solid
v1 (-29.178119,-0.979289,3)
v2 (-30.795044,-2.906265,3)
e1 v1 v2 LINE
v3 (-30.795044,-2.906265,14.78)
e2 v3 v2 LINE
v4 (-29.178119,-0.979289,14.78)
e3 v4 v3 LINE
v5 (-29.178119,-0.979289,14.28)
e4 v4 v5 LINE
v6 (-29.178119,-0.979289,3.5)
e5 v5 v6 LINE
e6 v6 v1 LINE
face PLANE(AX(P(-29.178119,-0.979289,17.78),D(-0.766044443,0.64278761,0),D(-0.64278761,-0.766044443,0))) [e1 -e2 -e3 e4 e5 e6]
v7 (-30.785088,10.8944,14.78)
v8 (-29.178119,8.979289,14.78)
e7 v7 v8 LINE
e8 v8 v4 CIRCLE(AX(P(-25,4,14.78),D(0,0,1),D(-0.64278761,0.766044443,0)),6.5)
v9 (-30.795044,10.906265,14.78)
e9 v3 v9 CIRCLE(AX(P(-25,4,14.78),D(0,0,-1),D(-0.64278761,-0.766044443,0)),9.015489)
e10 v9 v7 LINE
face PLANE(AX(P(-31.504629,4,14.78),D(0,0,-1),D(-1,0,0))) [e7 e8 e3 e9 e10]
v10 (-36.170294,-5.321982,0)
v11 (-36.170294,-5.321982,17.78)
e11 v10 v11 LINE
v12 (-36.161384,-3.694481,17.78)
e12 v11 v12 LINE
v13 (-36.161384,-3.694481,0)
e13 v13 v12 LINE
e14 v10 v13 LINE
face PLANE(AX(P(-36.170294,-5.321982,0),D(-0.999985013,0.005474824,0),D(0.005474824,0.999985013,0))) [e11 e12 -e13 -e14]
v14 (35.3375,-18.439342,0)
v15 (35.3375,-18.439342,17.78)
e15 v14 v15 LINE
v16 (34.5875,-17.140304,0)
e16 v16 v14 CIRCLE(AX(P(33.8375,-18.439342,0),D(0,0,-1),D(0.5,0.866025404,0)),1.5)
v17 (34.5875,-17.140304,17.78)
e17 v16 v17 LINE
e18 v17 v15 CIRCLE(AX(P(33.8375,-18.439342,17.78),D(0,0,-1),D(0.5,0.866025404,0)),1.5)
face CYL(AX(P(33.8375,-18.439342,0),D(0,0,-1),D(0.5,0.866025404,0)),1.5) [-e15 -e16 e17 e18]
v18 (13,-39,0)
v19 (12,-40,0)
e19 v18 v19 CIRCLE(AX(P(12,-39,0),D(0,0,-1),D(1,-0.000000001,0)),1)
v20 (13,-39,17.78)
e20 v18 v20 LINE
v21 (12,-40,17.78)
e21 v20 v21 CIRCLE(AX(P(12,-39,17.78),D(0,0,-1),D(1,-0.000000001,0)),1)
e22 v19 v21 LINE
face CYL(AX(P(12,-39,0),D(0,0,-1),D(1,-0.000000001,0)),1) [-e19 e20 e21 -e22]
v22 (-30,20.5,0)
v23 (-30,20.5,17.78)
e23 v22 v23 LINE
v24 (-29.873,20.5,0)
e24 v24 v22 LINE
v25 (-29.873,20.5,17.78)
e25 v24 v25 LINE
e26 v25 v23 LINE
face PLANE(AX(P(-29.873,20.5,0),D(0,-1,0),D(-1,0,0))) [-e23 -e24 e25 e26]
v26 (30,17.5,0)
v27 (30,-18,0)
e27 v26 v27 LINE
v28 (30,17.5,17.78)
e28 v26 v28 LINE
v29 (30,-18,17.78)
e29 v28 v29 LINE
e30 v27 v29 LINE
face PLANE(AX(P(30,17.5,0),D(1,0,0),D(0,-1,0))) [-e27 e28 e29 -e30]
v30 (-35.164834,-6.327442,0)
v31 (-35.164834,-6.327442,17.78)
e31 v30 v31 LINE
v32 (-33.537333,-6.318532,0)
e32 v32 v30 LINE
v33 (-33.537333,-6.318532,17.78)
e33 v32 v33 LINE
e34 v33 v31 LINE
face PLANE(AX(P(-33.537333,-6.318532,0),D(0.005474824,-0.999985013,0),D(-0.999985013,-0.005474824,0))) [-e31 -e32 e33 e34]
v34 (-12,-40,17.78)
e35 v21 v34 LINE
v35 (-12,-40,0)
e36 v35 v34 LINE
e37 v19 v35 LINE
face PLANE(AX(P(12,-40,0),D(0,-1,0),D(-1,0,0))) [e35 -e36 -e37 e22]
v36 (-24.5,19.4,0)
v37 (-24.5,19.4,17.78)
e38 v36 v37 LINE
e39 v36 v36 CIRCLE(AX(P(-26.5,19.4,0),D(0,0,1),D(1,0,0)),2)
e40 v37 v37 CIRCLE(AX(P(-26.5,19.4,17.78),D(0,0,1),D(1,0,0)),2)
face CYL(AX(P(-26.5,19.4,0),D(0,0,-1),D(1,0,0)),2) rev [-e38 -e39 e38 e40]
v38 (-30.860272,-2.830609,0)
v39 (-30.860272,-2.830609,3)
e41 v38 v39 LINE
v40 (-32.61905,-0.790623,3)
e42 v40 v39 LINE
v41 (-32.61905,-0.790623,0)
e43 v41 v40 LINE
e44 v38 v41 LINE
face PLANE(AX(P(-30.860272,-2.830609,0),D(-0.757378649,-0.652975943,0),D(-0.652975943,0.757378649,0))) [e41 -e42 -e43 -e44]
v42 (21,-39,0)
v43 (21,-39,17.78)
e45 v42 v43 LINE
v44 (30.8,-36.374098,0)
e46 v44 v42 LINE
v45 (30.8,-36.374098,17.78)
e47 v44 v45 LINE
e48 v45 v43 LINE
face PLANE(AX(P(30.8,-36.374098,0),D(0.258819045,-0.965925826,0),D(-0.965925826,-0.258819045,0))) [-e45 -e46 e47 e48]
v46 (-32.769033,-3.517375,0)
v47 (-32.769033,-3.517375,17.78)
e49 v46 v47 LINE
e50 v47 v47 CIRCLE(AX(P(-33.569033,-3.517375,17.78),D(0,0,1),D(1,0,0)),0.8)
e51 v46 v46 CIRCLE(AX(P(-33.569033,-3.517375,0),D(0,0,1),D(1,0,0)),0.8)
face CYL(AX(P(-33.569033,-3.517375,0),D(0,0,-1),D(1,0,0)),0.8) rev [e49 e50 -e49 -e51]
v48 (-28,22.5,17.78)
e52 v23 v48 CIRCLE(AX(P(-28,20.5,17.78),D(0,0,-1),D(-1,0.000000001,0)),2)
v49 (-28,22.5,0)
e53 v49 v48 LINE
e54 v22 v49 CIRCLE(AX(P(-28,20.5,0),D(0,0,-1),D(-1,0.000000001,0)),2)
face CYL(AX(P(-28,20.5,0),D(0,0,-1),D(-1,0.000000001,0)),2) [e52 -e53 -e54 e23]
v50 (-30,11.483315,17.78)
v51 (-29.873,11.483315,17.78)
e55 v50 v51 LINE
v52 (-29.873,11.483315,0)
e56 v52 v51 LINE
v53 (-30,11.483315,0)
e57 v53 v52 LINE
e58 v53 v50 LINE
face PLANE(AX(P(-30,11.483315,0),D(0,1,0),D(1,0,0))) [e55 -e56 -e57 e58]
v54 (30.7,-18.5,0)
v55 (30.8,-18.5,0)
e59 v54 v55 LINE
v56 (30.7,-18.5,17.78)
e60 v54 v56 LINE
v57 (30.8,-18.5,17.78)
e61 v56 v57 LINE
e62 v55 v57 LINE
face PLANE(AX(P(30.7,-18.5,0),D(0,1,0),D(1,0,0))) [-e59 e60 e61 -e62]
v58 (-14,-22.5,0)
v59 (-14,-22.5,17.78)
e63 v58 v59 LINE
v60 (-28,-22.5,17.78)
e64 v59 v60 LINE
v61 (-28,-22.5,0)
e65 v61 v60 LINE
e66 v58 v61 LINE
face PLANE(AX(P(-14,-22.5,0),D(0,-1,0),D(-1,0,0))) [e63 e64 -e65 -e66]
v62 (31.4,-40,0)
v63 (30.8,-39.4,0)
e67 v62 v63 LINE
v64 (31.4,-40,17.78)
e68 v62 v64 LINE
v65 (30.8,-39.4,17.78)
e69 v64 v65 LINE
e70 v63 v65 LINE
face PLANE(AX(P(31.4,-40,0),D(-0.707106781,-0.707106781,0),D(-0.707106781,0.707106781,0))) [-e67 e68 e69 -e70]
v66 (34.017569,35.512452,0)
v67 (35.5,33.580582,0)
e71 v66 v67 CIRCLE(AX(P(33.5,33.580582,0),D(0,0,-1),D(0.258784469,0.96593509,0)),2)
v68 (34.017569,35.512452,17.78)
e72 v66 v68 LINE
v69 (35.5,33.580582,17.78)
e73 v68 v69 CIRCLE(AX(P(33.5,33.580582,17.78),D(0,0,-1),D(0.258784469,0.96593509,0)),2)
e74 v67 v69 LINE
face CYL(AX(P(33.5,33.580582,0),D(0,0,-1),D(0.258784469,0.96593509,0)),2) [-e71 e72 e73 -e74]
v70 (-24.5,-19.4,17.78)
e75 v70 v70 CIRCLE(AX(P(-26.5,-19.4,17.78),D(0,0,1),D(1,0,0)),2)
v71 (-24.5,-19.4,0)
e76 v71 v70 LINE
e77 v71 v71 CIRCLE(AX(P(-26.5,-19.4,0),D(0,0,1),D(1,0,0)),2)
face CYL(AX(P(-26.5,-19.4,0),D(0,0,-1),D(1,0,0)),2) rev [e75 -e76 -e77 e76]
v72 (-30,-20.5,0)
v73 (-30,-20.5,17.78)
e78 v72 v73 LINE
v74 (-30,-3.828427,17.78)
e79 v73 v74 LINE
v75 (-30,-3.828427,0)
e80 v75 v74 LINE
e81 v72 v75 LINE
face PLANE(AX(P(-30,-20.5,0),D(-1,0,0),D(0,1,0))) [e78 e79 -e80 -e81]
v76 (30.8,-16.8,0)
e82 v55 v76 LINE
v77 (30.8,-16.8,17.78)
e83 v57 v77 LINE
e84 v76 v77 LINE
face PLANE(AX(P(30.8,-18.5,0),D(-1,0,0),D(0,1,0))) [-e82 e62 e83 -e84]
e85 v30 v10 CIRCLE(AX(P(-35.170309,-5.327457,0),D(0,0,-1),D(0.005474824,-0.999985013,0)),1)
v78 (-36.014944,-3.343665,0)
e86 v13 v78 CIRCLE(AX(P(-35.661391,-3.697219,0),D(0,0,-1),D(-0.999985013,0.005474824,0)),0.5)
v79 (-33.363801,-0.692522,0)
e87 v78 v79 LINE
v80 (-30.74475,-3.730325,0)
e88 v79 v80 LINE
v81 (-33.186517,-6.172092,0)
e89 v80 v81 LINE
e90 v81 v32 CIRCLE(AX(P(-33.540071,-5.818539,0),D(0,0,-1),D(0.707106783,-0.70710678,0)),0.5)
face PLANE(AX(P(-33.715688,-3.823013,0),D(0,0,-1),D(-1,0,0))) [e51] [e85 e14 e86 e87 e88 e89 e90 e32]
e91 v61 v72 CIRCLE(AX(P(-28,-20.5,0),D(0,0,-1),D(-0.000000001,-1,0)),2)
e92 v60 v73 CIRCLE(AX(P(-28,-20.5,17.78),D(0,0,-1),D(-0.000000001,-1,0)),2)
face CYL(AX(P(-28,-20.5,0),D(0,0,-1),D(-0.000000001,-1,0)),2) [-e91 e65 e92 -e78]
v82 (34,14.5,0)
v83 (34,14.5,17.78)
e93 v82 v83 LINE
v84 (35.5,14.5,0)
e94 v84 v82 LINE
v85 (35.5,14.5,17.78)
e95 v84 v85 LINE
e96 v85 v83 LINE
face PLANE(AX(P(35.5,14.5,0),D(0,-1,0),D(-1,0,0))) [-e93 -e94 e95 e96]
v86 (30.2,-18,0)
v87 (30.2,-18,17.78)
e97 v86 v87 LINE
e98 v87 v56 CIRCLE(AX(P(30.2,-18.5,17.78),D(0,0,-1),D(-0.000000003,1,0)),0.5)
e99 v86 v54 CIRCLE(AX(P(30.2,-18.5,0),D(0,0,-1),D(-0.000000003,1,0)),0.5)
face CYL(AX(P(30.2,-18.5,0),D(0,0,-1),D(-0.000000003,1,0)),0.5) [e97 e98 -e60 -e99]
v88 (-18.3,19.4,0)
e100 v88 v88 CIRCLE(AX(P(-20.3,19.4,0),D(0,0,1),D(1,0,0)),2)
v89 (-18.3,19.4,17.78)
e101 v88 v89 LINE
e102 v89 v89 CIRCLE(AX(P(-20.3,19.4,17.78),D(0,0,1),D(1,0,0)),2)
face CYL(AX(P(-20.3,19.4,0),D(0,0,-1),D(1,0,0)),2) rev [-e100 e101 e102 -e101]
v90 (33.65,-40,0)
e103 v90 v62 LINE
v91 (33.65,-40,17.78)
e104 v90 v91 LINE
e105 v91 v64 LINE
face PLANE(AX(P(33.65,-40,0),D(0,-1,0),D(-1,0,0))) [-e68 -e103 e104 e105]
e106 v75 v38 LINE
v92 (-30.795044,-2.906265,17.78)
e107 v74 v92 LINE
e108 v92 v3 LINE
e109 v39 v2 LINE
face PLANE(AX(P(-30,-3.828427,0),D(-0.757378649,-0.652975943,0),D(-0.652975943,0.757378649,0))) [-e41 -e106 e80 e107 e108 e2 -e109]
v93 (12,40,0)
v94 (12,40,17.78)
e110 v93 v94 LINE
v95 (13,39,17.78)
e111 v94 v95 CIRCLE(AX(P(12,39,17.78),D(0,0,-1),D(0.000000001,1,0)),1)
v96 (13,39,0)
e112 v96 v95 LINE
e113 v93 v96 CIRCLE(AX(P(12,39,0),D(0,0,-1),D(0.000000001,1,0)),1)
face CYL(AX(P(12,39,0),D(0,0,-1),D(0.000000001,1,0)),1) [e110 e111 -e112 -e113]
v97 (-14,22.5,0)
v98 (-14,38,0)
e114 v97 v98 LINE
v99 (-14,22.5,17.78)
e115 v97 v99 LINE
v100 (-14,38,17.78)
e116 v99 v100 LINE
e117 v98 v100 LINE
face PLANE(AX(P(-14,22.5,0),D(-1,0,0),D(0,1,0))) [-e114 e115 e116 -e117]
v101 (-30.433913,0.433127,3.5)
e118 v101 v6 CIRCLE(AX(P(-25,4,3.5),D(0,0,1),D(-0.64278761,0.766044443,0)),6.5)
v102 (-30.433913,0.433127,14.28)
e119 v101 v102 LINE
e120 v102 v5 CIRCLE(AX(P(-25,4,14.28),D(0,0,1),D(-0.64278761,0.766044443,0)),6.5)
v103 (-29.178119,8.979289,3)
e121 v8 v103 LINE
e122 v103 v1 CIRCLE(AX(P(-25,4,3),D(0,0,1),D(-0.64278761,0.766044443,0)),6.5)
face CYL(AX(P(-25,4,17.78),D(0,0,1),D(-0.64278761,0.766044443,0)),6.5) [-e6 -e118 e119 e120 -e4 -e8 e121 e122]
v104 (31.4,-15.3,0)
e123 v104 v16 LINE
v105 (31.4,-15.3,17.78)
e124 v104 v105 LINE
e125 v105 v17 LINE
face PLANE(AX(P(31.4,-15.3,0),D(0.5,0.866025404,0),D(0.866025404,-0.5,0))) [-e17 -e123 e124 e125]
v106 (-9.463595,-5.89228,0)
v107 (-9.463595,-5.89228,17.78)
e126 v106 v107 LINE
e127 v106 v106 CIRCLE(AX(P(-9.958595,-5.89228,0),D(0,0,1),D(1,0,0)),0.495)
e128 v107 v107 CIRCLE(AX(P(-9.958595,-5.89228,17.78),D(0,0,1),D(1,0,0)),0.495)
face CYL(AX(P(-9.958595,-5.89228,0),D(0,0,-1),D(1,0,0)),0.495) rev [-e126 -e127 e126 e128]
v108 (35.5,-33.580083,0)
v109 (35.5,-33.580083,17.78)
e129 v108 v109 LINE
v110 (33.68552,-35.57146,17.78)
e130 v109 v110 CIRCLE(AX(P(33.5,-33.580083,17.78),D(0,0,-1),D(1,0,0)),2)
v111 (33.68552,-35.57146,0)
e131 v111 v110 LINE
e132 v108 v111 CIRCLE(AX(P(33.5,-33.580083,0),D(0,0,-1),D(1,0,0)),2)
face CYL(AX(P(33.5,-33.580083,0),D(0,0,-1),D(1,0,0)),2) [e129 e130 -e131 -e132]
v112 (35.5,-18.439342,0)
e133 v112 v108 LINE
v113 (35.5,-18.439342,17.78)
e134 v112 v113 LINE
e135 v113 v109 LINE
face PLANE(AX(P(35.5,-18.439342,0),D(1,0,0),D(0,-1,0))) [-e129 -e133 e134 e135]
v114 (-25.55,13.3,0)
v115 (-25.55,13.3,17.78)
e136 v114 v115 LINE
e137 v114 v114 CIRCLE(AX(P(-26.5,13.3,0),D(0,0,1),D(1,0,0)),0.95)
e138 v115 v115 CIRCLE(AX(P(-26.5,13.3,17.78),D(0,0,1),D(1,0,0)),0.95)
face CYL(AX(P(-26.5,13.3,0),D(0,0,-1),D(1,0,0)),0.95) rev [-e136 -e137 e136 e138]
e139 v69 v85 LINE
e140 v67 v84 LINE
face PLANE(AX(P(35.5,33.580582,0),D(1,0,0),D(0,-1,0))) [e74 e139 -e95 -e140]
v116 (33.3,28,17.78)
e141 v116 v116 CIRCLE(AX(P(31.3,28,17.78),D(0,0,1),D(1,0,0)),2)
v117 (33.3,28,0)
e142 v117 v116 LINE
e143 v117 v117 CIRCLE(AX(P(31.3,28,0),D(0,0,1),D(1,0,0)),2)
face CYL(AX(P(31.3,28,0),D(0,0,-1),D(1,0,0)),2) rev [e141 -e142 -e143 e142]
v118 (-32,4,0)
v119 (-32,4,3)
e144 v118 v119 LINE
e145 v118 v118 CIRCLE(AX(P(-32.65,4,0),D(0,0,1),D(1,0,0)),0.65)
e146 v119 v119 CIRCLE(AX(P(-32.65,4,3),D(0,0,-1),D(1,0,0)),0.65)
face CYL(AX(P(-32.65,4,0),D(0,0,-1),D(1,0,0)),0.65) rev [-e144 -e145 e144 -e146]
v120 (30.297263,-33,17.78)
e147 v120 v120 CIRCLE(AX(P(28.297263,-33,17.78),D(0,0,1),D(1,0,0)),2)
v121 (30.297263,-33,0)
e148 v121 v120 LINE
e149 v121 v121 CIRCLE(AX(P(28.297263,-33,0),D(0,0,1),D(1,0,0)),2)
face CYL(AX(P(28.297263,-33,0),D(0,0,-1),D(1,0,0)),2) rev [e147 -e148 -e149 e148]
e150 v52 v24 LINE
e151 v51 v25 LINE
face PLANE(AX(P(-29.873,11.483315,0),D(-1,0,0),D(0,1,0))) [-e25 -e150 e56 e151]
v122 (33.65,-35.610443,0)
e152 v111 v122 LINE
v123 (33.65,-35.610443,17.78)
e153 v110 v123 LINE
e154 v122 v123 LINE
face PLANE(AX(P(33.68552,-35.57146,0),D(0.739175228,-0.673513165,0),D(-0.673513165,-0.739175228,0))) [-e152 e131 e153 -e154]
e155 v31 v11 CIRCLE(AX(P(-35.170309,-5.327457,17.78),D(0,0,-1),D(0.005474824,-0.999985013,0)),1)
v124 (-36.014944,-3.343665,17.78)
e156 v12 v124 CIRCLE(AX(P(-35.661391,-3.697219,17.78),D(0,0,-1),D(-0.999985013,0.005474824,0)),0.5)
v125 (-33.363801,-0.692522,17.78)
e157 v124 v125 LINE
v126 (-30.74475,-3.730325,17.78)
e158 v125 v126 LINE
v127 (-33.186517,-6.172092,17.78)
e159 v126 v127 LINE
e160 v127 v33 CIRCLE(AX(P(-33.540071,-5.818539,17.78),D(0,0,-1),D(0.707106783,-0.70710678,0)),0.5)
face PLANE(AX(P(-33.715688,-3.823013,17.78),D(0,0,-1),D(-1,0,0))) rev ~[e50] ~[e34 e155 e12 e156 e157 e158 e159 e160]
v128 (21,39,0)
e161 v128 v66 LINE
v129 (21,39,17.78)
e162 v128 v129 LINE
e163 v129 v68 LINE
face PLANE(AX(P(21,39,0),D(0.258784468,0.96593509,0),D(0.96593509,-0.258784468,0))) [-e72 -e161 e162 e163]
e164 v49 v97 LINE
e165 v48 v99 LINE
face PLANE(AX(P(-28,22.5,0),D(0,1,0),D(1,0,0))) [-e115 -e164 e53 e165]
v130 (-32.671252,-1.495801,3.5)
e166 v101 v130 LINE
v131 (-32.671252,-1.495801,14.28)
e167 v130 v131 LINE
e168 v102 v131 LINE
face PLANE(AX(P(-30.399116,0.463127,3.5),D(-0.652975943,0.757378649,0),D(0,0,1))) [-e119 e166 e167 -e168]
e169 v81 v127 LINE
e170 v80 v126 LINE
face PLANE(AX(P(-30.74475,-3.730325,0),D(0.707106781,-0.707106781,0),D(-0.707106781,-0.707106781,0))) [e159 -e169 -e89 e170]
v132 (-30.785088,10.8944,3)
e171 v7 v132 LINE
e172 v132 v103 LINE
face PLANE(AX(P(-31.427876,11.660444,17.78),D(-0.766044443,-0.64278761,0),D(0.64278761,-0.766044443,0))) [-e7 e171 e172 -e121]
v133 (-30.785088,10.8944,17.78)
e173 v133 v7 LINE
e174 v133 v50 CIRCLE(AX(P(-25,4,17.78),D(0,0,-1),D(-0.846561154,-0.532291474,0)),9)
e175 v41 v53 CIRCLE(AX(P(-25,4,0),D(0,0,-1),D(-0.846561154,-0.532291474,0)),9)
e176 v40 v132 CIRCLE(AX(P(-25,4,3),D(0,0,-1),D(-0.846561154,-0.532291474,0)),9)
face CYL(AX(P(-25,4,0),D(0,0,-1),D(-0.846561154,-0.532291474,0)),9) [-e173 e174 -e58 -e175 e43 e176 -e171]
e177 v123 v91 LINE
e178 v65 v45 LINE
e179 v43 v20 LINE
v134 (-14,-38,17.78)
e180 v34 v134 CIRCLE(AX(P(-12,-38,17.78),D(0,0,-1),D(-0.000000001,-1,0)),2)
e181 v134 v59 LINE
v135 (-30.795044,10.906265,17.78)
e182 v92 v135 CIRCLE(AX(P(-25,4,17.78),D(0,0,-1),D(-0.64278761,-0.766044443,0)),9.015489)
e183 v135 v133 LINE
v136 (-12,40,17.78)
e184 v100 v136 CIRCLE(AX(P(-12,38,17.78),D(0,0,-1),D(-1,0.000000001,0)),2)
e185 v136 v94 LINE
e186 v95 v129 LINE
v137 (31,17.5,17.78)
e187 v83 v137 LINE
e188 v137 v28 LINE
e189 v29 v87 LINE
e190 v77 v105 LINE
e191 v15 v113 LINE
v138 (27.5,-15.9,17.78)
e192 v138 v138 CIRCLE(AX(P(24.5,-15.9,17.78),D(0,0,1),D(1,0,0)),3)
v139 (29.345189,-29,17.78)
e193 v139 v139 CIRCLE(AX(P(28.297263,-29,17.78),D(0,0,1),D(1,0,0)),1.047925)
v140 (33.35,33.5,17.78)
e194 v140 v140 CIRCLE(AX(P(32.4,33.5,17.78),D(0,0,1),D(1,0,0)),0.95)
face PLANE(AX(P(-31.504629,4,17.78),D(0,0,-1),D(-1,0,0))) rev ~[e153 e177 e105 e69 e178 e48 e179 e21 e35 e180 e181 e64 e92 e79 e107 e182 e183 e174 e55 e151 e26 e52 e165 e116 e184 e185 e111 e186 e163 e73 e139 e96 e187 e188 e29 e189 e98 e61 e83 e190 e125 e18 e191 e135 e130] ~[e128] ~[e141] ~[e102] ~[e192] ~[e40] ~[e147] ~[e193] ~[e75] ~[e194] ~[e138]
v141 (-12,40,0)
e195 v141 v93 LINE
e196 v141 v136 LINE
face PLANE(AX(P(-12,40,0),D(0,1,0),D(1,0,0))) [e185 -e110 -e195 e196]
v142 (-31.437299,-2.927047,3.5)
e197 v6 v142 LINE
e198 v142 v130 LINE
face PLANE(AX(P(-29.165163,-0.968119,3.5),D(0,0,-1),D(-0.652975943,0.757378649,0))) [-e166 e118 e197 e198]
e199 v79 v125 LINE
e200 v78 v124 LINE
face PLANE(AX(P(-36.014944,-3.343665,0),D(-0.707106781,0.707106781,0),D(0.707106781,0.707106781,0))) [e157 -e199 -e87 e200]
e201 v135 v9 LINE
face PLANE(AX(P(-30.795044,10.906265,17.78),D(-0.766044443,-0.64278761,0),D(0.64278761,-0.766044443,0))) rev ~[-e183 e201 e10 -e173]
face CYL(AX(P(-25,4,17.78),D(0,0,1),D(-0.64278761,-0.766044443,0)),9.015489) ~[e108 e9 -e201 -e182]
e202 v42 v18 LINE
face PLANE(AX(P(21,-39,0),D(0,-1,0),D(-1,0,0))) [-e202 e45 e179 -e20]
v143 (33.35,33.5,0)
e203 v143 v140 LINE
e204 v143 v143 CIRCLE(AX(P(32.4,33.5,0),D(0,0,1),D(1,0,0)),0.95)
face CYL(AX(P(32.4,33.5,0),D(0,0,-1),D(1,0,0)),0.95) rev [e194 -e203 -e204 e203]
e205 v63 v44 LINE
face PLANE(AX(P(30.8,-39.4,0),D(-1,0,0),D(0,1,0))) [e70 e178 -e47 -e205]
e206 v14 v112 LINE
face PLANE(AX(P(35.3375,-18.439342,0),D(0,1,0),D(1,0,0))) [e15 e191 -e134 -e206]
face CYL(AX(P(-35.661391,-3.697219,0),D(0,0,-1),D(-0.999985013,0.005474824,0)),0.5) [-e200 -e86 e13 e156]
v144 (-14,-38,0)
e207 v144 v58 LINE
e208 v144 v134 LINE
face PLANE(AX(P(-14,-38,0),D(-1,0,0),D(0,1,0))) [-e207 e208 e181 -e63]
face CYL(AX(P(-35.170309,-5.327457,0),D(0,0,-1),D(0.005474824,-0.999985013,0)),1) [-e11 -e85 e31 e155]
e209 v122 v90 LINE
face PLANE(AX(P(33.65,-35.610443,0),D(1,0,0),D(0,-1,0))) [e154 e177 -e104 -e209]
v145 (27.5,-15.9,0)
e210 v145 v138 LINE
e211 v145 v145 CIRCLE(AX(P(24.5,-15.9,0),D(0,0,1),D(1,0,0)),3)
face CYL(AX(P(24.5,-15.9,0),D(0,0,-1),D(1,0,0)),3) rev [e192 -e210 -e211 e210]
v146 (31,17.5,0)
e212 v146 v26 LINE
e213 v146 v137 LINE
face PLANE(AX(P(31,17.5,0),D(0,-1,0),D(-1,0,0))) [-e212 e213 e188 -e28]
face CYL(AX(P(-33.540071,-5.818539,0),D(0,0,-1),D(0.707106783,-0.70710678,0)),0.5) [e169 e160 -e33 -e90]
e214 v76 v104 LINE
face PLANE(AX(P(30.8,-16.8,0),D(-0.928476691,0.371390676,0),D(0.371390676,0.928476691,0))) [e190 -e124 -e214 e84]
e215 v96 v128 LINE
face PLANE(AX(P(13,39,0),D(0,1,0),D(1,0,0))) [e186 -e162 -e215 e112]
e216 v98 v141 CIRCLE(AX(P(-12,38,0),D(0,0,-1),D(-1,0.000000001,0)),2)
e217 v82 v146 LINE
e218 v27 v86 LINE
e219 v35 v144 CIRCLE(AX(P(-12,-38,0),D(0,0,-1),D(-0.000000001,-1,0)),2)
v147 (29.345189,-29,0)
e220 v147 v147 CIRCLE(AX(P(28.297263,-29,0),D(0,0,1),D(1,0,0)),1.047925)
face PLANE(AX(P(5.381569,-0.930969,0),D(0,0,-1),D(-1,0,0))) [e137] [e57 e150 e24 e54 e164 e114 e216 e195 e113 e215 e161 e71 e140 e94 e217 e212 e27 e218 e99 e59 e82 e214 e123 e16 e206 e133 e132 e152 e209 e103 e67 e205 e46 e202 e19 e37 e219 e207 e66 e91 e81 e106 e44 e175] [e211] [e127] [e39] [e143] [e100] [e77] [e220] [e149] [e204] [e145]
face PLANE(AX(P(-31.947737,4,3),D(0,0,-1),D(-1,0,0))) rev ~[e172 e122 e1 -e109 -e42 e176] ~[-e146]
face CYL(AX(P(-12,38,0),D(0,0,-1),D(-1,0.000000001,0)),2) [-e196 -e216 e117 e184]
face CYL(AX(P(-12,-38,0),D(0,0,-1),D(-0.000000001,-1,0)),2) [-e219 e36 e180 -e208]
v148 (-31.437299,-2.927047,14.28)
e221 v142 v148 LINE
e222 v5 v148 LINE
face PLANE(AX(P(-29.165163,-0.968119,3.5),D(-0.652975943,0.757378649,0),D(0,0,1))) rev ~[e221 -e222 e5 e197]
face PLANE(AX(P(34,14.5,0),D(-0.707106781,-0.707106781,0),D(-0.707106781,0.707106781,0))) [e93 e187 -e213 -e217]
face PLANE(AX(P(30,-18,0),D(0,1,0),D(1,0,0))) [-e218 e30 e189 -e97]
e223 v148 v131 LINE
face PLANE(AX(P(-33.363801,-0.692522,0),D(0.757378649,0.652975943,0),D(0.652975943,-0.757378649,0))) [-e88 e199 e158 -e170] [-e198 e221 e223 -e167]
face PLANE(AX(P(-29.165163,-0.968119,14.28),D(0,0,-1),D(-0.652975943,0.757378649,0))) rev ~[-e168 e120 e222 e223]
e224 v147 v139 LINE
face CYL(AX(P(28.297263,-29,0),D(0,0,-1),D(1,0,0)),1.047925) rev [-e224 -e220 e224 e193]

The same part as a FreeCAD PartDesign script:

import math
import FreeCAD as App
import Part
import Sketcher
Q = App.Units.Quantity

doc = App.newDocument("Part")
body = doc.addObject("PartDesign::Body", "Body")

# Sketch on XY plane
sketch1 = doc.addObject("Sketcher::SketchObject", "Sketch")
body.addObject(sketch1)
sketch1.AttachmentSupport = (doc.XY_Plane, [""])
sketch1.MapMode = "FlatFace"
sketch1.addGeometry([
    Part.LineSegment(App.Vector(34, 14.5, 0), App.Vector(35.5, 14.5, 0)),  # 0
    Part.LineSegment(App.Vector(35.5, 14.5, 0), App.Vector(35.5, 33.58, 0)),  # 1
    Part.ArcOfCircle(Part.Circle(App.Vector(33.5, 33.58, 0), App.Vector(0, 0, 1), 2), math.radians(0), math.radians(75)),  # 2
    Part.LineSegment(App.Vector(34.02, 35.51, 0), App.Vector(21, 39, 0)),  # 3
    Part.LineSegment(App.Vector(21, 39, 0), App.Vector(13, 39, 0)),  # 4
    Part.ArcOfCircle(Part.Circle(App.Vector(12, 39, 0), App.Vector(0, 0, 1), 1), math.radians(0), math.radians(90)),  # 5
    Part.LineSegment(App.Vector(12, 40, 0), App.Vector(-12, 40, 0)),  # 6
    Part.ArcOfCircle(Part.Circle(App.Vector(-12, 38, 0), App.Vector(0, 0, 1), 2), math.radians(90), math.radians(180)),  # 7
    Part.LineSegment(App.Vector(-14, 38, 0), App.Vector(-14, 22.5, 0)),  # 8
    Part.LineSegment(App.Vector(-14, 22.5, 0), App.Vector(-28, 22.5, 0)),  # 9
    Part.ArcOfCircle(Part.Circle(App.Vector(-28, 20.5, 0), App.Vector(0, 0, 1), 2), math.radians(90), math.radians(180)),  # 10
    Part.LineSegment(App.Vector(-30, 20.5, 0), App.Vector(-29.87, 20.5, 0)),  # 11
    Part.LineSegment(App.Vector(-29.87, 20.5, 0), App.Vector(-29.87, 11.48, 0)),  # 12
    Part.LineSegment(App.Vector(-29.87, 11.48, 0), App.Vector(-30, 11.48, 0)),  # 13
    Part.ArcOfCircle(Part.Circle(App.Vector(-25, 4, 0), App.Vector(0, 0, 1), 9), math.radians(124), math.radians(212)),  # 14
    Part.LineSegment(App.Vector(-32.62, -0.79, 0), App.Vector(-30.86, -2.83, 0)),  # 15
    Part.LineSegment(App.Vector(-30.86, -2.83, 0), App.Vector(-30, -3.83, 0)),  # 16
    Part.LineSegment(App.Vector(-30, -3.83, 0), App.Vector(-30, -20.5, 0)),  # 17
    Part.ArcOfCircle(Part.Circle(App.Vector(-28, -20.5, 0), App.Vector(0, 0, 1), 2), math.radians(-180), math.radians(-90)),  # 18
    Part.LineSegment(App.Vector(-28, -22.5, 0), App.Vector(-14, -22.5, 0)),  # 19
    Part.LineSegment(App.Vector(-14, -22.5, 0), App.Vector(-14, -38, 0)),  # 20
    Part.ArcOfCircle(Part.Circle(App.Vector(-12, -38, 0), App.Vector(0, 0, 1), 2), math.radians(-180), math.radians(-90)),  # 21
    Part.LineSegment(App.Vector(-12, -40, 0), App.Vector(12, -40, 0)),  # 22
    Part.ArcOfCircle(Part.Circle(App.Vector(12, -39, 0), App.Vector(0, 0, 1), 1), math.radians(-90), math.radians(0)),  # 23
    Part.LineSegment(App.Vector(13, -39, 0), App.Vector(21, -39, 0)),  # 24
    Part.LineSegment(App.Vector(21, -39, 0), App.Vector(30.8, -36.37, 0)),  # 25
    Part.LineSegment(App.Vector(30.8, -36.37, 0), App.Vector(30.8, -39.4, 0)),  # 26
    Part.LineSegment(App.Vector(30.8, -39.4, 0), App.Vector(31.4, -40, 0)),  # 27
    Part.LineSegment(App.Vector(31.4, -40, 0), App.Vector(33.65, -40, 0)),  # 28
    Part.LineSegment(App.Vector(33.65, -40, 0), App.Vector(33.65, -35.61, 0)),  # 29
    Part.LineSegment(App.Vector(33.65, -35.61, 0), App.Vector(33.69, -35.57, 0)),  # 30
    Part.ArcOfCircle(Part.Circle(App.Vector(33.5, -33.58, 0), App.Vector(0, 0, 1), 2), math.radians(-85), math.radians(0)),  # 31
    Part.LineSegment(App.Vector(35.5, -33.58, 0), App.Vector(35.5, -18.44, 0)),  # 32
    Part.LineSegment(App.Vector(35.5, -18.44, 0), App.Vector(35.34, -18.44, 0)),  # 33
    Part.ArcOfCircle(Part.Circle(App.Vector(33.84, -18.44, 0), App.Vector(0, 0, 1), 1.5), math.radians(0), math.radians(60)),  # 34
    Part.LineSegment(App.Vector(34.59, -17.14, 0), App.Vector(31.4, -15.3, 0)),  # 35
    Part.LineSegment(App.Vector(31.4, -15.3, 0), App.Vector(30.8, -16.8, 0)),  # 36
    Part.LineSegment(App.Vector(30.8, -16.8, 0), App.Vector(30.8, -18.5, 0)),  # 37
    Part.LineSegment(App.Vector(30.8, -18.5, 0), App.Vector(30.7, -18.5, 0)),  # 38
    Part.ArcOfCircle(Part.Circle(App.Vector(30.2, -18.5, 0), App.Vector(0, 0, 1), 0.5), math.radians(0), math.radians(90)),  # 39
    Part.LineSegment(App.Vector(30.2, -18, 0), App.Vector(30, -18, 0)),  # 40
    Part.LineSegment(App.Vector(30, -18, 0), App.Vector(30, 17.5, 0)),  # 41
    Part.LineSegment(App.Vector(30, 17.5, 0), App.Vector(31, 17.5, 0)),  # 42
    Part.LineSegment(App.Vector(31, 17.5, 0), App.Vector(34, 14.5, 0)),  # 43
    Part.Circle(App.Vector(28.3, -33, 0), App.Vector(0, 0, 1), 2),  # 44
    Part.Circle(App.Vector(28.3, -29, 0), App.Vector(0, 0, 1), 1.05),  # 45
    Part.Circle(App.Vector(24.5, -15.9, 0), App.Vector(0, 0, 1), 3),  # 46
    Part.Circle(App.Vector(-26.5, -19.4, 0), App.Vector(0, 0, 1), 2),  # 47
    Part.Circle(App.Vector(-9.96, -5.89, 0), App.Vector(0, 0, 1), 0.49),  # 48
    Part.Circle(App.Vector(31.3, 28, 0), App.Vector(0, 0, 1), 2),  # 49
    Part.Circle(App.Vector(32.4, 33.5, 0), App.Vector(0, 0, 1), 0.95),  # 50
    Part.Circle(App.Vector(-32.65, 4, 0), App.Vector(0, 0, 1), 0.65),  # 51
    Part.Circle(App.Vector(-26.5, 13.3, 0), App.Vector(0, 0, 1), 0.95),  # 52
    Part.Circle(App.Vector(-20.3, 19.4, 0), App.Vector(0, 0, 1), 2),  # 53
    Part.Circle(App.Vector(-26.5, 19.4, 0), App.Vector(0, 0, 1), 2),  # 54
], False)
sketch1.addConstraint([
    Sketcher.Constraint("Coincident", 0, 2, 1, 1),
    Sketcher.Constraint("Tangent", 1, 2, 2, 1),
    Sketcher.Constraint("Tangent", 2, 2, 3, 1),
    Sketcher.Constraint("Coincident", 3, 2, 4, 1),
    Sketcher.Constraint("Coincident", 4, 2, 5, 1),
    Sketcher.Constraint("Tangent", 5, 2, 6, 1),
    Sketcher.Constraint("Tangent", 6, 2, 7, 1),
    Sketcher.Constraint("Tangent", 7, 2, 8, 1),
    Sketcher.Constraint("Coincident", 8, 2, 9, 1),
    Sketcher.Constraint("Tangent", 9, 2, 10, 1),
    Sketcher.Constraint("Coincident", 10, 2, 11, 1),
    Sketcher.Constraint("Coincident", 11, 2, 12, 1),
    Sketcher.Constraint("Coincident", 12, 2, 13, 1),
    Sketcher.Constraint("Coincident", 13, 2, 14, 1),
    Sketcher.Constraint("Coincident", 14, 2, 15, 1),
    Sketcher.Constraint("Coincident", 15, 2, 16, 1),
    Sketcher.Constraint("Coincident", 16, 2, 17, 1),
    Sketcher.Constraint("Tangent", 17, 2, 18, 1),
    Sketcher.Constraint("Tangent", 18, 2, 19, 1),
    Sketcher.Constraint("Coincident", 19, 2, 20, 1),
    Sketcher.Constraint("Tangent", 20, 2, 21, 1),
    Sketcher.Constraint("Tangent", 21, 2, 22, 1),
    Sketcher.Constraint("Tangent", 22, 2, 23, 1),
    Sketcher.Constraint("Coincident", 23, 2, 24, 1),
    Sketcher.Constraint("Coincident", 24, 2, 25, 1),
    Sketcher.Constraint("Coincident", 25, 2, 26, 1),
    Sketcher.Constraint("Coincident", 26, 2, 27, 1),
    Sketcher.Constraint("Coincident", 27, 2, 28, 1),
    Sketcher.Constraint("Coincident", 28, 2, 29, 1),
    Sketcher.Constraint("Coincident", 29, 2, 30, 1),
    Sketcher.Constraint("Coincident", 30, 2, 31, 1),
    Sketcher.Constraint("Tangent", 31, 2, 32, 1),
    Sketcher.Constraint("Coincident", 32, 2, 33, 1),
    Sketcher.Constraint("Coincident", 33, 2, 34, 1),
    Sketcher.Constraint("Tangent", 34, 2, 35, 1),
    Sketcher.Constraint("Coincident", 35, 2, 36, 1),
    Sketcher.Constraint("Coincident", 36, 2, 37, 1),
    Sketcher.Constraint("Coincident", 37, 2, 38, 1),
    Sketcher.Constraint("Coincident", 38, 2, 39, 1),
    Sketcher.Constraint("Tangent", 39, 2, 40, 1),
    Sketcher.Constraint("Coincident", 40, 2, 41, 1),
    Sketcher.Constraint("Coincident", 41, 2, 42, 1),
    Sketcher.Constraint("Coincident", 42, 2, 43, 1),
    Sketcher.Constraint("Coincident", 43, 2, 0, 1),
    Sketcher.Constraint("Horizontal", 0),
    Sketcher.Constraint("Vertical", 1),
    Sketcher.Constraint("Horizontal", 4),
    Sketcher.Constraint("Horizontal", 6),
    Sketcher.Constraint("Vertical", 8),
    Sketcher.Constraint("Horizontal", 9),
    Sketcher.Constraint("Horizontal", 11),
    Sketcher.Constraint("Vertical", 12),
    Sketcher.Constraint("Horizontal", 13),
    Sketcher.Constraint("Vertical", 17),
    Sketcher.Constraint("Horizontal", 19),
    Sketcher.Constraint("Vertical", 20),
    Sketcher.Constraint("Horizontal", 22),
    Sketcher.Constraint("Horizontal", 24),
    Sketcher.Constraint("Vertical", 26),
    Sketcher.Constraint("Horizontal", 28),
    Sketcher.Constraint("Vertical", 29),
    Sketcher.Constraint("Vertical", 32),
    Sketcher.Constraint("Horizontal", 33),
    Sketcher.Constraint("Vertical", 37),
    Sketcher.Constraint("Horizontal", 38),
    Sketcher.Constraint("Horizontal", 40),
    Sketcher.Constraint("Vertical", 41),
    Sketcher.Constraint("Horizontal", 42),
    Sketcher.Constraint("Equal", 2, 7),
    Sketcher.Constraint("Equal", 7, 10),
    Sketcher.Constraint("Equal", 10, 18),
    Sketcher.Constraint("Equal", 18, 21),
    Sketcher.Constraint("Equal", 5, 23),
    Sketcher.Constraint("Equal", 21, 31),
    Sketcher.Constraint("Equal", 31, 44),
    Sketcher.Constraint("Equal", 44, 47),
    Sketcher.Constraint("Equal", 47, 49),
    Sketcher.Constraint("Equal", 50, 52),
    Sketcher.Constraint("Equal", 49, 53),
    Sketcher.Constraint("Equal", 53, 54),
    Sketcher.Constraint("Symmetric", 5, 2, 21, 2, -1, 1),
    Sketcher.Constraint("Symmetric", 10, 3, 18, 3, -1),
    Sketcher.Constraint("Symmetric", 47, 3, 54, 3, -1),
    Sketcher.Constraint("Symmetric", 4, 2, 23, 2, -1),
    Sketcher.Constraint("Parallel", 15, 16),
    Sketcher.Constraint("Parallel", 27, 43),
    Sketcher.Constraint("Horizontal", 14, 3, 51, 3),
    Sketcher.Constraint("Horizontal", 53, 3, 54, 3),
    Sketcher.Constraint("Horizontal", 5, 3, 3, 2),
    Sketcher.Constraint("Horizontal", 22, 2, 27, 2),
    Sketcher.Constraint("Horizontal", 34, 3, 32, 2),
    Sketcher.Constraint("Horizontal", 39, 3, 37, 2),
    Sketcher.Constraint("Vertical", 7, 3, 21, 3),
    Sketcher.Constraint("Vertical", 2, 3, 31, 3),
    Sketcher.Constraint("Vertical", 44, 3, 45, 3),
    Sketcher.Constraint("Vertical", 47, 3, 52, 3),
    Sketcher.Constraint("Vertical", 10, 2, 13, 2),
    Sketcher.Constraint("Vertical", 3, 2, 24, 2),
    Sketcher.Constraint("Vertical", 27, 2, 35, 2),
    Sketcher.Constraint("Vertical", 26, 2, 36, 2),
    Sketcher.Constraint("Diameter", 44, 4.0),
    Sketcher.Constraint("Diameter", 46, 6.0),
    Sketcher.Constraint("Radius", 5, 1.0),
    Sketcher.Constraint("Radius", 14, 9.0),
    Sketcher.Constraint("Diameter", 50, 1.9),
    Sketcher.Constraint("Diameter", 51, 1.3),
    Sketcher.Constraint("Radius", 34, 1.5),
    Sketcher.Constraint("Radius", 39, 0.5),
    Sketcher.Constraint("Diameter", 48, 0.99),
    Sketcher.Constraint("DistanceX", 4, 2, 4, 1, 8.0),
    Sketcher.Constraint("DistanceX", 6, 2, 6, 1, 24.0),
    Sketcher.Constraint("DistanceX", 9, 2, 9, 1, 14.0),
    Sketcher.Constraint("DistanceX", 42, 1, 42, 2, 1.0),
    Sketcher.Constraint("Angle", 25, Q("15 deg")),
    Sketcher.Constraint("Angle", 27, Q("-45 deg")),
    Sketcher.Constraint("Angle", 35, Q("150 deg")),
    Sketcher.Constraint("DistanceX", 0, 1, 0, 2, 1.5),
    Sketcher.Constraint("DistanceX", 38, 2, 38, 1, 0.1),
    Sketcher.Constraint("DistanceX", 40, 2, 40, 1, 0.2),
    Sketcher.Constraint("DistanceY", 8, 2, 8, 1, 15.5),
    Sketcher.Constraint("DistanceY", 37, 2, 37, 1, 1.7),
    Sketcher.Constraint("DistanceY", 41, 1, 41, 2, 35.5),
    Sketcher.Constraint("DistanceY", -1, 1, 5, 3, 39.0),
    Sketcher.Constraint("DistanceX", 14, 3, -1, 1, 25.0),
    Sketcher.Constraint("DistanceY", -1, 1, 14, 3, 4.0),
    Sketcher.Constraint("DistanceY", 44, 3, -1, 1, 33.0),
    Sketcher.Constraint("DistanceY", 45, 3, -1, 1, 29.0),
    Sketcher.Constraint("DistanceY", -1, 1, 49, 3, 28.0),
    Sketcher.Constraint("DistanceY", 39, 2, -1, 1, 18.0),
    Sketcher.Constraint("DistanceX", -1, 1, 40, 2, 30.0),
    Sketcher.Constraint("DistanceX", -1, 1, 43, 2, 34.0),
    Sketcher.Constraint("DistanceX", 28, 1, 28, 2, 2.25),
    Sketcher.Constraint("DistanceX", -1, 1, 46, 3, 24.5),
    Sketcher.Constraint("DistanceY", 46, 3, -1, 1, 15.9),
    Sketcher.Constraint("DistanceX", 47, 3, -1, 1, 26.5),
    Sketcher.Constraint("DistanceY", 47, 3, -1, 1, 19.4),
    Sketcher.Constraint("DistanceX", -1, 1, 49, 3, 31.3),
    Sketcher.Constraint("DistanceX", -1, 1, 50, 3, 32.4),
    Sketcher.Constraint("DistanceY", -1, 1, 50, 3, 33.5),
    Sketcher.Constraint("DistanceY", -1, 1, 52, 3, 13.3),
    Sketcher.Constraint("DistanceX", 53, 3, -1, 1, 20.3),
    Sketcher.Constraint("DistanceY", -1, 1, 10, 2, 20.5),
    Sketcher.Constraint("DistanceY", 26, 2, -1, 1, 39.4),
    Sketcher.Constraint("DistanceY", 35, 2, -1, 1, 15.3),
    Sketcher.Constraint("Diameter", 45, 2.09585),
    Sketcher.Constraint("DistanceX", 11, 1, 11, 2, 0.127),
    Sketcher.Constraint("DistanceX", 51, 3, -1, 1, 32.65),
    Sketcher.Constraint("DistanceX", 33, 2, 33, 1, 0.1625),
    Sketcher.Constraint("DistanceY", 32, 1, 32, 2, 15.140741),
    Sketcher.Constraint("Distance", 3, 13.47665),
    Sketcher.Constraint("Distance", 15, 2.693482),
    Sketcher.Constraint("Distance", 30, 0.052739),
    Sketcher.Constraint("DistanceY", 17, 2, 17, 1, 16.671573),
    Sketcher.Constraint("DistanceY", 29, 1, 29, 2, 4.389557),
    Sketcher.Constraint("DistanceY", 48, 3, -1, 1, 5.89228),
    Sketcher.Constraint("DistanceX", 14, 2, -1, 1, 32.61905),
    Sketcher.Constraint("DistanceX", -1, 1, 44, 3, 28.297263),
    Sketcher.Constraint("DistanceX", 48, 3, -1, 1, 9.958595),
])
pad1 = doc.addObject("PartDesign::Pad", "Pad")
body.addObject(pad1)
pad1.Profile = sketch1
pad1.Length = 17.78

# Sketch on XY plane
sketch2 = doc.addObject("Sketcher::SketchObject", "Sketch001")
body.addObject(sketch2)
sketch2.AttachmentSupport = (doc.XY_Plane, [""])
sketch2.MapMode = "FlatFace"
sketch2.AttachmentOffset = App.Placement(App.Vector(0, 0, 17.78), App.Rotation())
sketch2.addGeometry([
    Part.LineSegment(App.Vector(-29.2, 9, 0), App.Vector(-31.4, 11.7, 0)),
    Part.ArcOfCircle(Part.Circle(App.Vector(-25, 4, 0), App.Vector(0, 0, 1), 10), math.radians(130), math.radians(230)),
    Part.LineSegment(App.Vector(-31.4, -3.7, 0), App.Vector(-29.2, -1, 0)),
    Part.ArcOfCircle(Part.Circle(App.Vector(-25, 4, 0), App.Vector(0, 0, 1), 6.5), math.radians(130), math.radians(230)),
], False)
sketch2.addConstraint([
    Sketcher.Constraint("Coincident", 0, 2, 1, 1),
    Sketcher.Constraint("Coincident", 1, 2, 2, 1),
    Sketcher.Constraint("Coincident", 2, 2, 3, 2),
    Sketcher.Constraint("Coincident", 3, 1, 0, 1),
    Sketcher.Constraint("Coincident", 3, 3, 1, 3),
    Sketcher.Constraint("Vertical", 0, 2, 1, 2),
    Sketcher.Constraint("Vertical", 2, 2, 3, 1),
    Sketcher.Constraint("Radius", 1, 10.0),
    Sketcher.Constraint("Radius", 3, 6.5),
    Sketcher.Constraint("Angle", 0, Q("130 deg")),
    Sketcher.Constraint("DistanceX", 1, 3, -1, 1, 25.0),
    Sketcher.Constraint("DistanceY", -1, 1, 1, 3, 4.0),
    Sketcher.Constraint("DistanceX", 2, 2, -1, 1, 29.178119),
])
pocket1 = doc.addObject("PartDesign::Pocket", "Pocket")
body.addObject(pocket1)
pocket1.Profile = sketch2
pocket1.Length = 14.78

# Sketch on XY plane
sketch3 = doc.addObject("Sketcher::SketchObject", "Sketch002")
body.addObject(sketch3)
sketch3.AttachmentSupport = (doc.XY_Plane, [""])
sketch3.MapMode = "FlatFace"
sketch3.AttachmentOffset = App.Placement(App.Vector(0, 0, 17.78), App.Rotation())
sketch3.addGeometry([
    Part.LineSegment(App.Vector(-30.8, -2.9, 0), App.Vector(-29.2, -1, 0)),
    Part.ArcOfCircle(Part.Circle(App.Vector(-25, 4, 0), App.Vector(0, 0, 1), 6.5), math.radians(130), math.radians(230)),
    Part.LineSegment(App.Vector(-29.2, 9, 0), App.Vector(-30.8, 10.9, 0)),
    Part.ArcOfCircle(Part.Circle(App.Vector(-25, 4, 0), App.Vector(0, 0, 1), 9), math.radians(130), math.radians(230)),
], False)
sketch3.addConstraint([
    Sketcher.Constraint("Coincident", 0, 2, 1, 2),
    Sketcher.Constraint("Coincident", 1, 1, 2, 1),
    Sketcher.Constraint("Coincident", 2, 2, 3, 1),
    Sketcher.Constraint("Coincident", 3, 2, 0, 1),
    Sketcher.Constraint("Coincident", 3, 3, 1, 3),
    Sketcher.Constraint("Vertical", 0, 2, 1, 1),
    Sketcher.Constraint("Vertical", 2, 2, 3, 2),
    Sketcher.Constraint("Radius", 1, 6.5),
    Sketcher.Constraint("Angle", 0, Q("50 deg")),
    Sketcher.Constraint("DistanceX", 1, 3, -1, 1, 25.0),
    Sketcher.Constraint("DistanceY", -1, 1, 1, 3, 4.0),
    Sketcher.Constraint("Radius", 3, 9.015489),
    Sketcher.Constraint("DistanceX", 0, 2, -1, 1, 29.178119),
])
pad2 = doc.addObject("PartDesign::Pad", "Pad001")
body.addObject(pad2)
pad2.Profile = sketch3
pad2.Length = 3
pad2.Reversed = True

# Sketch on an angled plane
sketch4 = doc.addObject("Sketcher::SketchObject", "Sketch003")
body.addObject(sketch4)
sketch4.Placement = App.Placement(App.Vector(-19.102021, -16.468857, 0), App.Rotation(App.Vector(0, 0, 1), App.Vector(-0.652975943, 0.757378649, 0), App.Vector(-0.757378649, -0.652975943, 0), "ZXY"))
sketch4.addGeometry([
    Part.LineSegment(App.Vector(3.5, 20.2, 0), App.Vector(3.5, 18.3, 0)),
    Part.LineSegment(App.Vector(3.5, 18.3, 0), App.Vector(14.3, 18.3, 0)),
    Part.LineSegment(App.Vector(14.3, 18.3, 0), App.Vector(14.3, 20.2, 0)),
    Part.LineSegment(App.Vector(14.3, 20.2, 0), App.Vector(3.5, 20.2, 0)),
], False)
sketch4.addConstraint([
    Sketcher.Constraint("Coincident", 0, 2, 1, 1),
    Sketcher.Constraint("Coincident", 1, 2, 2, 1),
    Sketcher.Constraint("Coincident", 2, 2, 3, 1),
    Sketcher.Constraint("Coincident", 3, 2, 0, 1),
    Sketcher.Constraint("Vertical", 0),
    Sketcher.Constraint("Horizontal", 1),
    Sketcher.Constraint("Vertical", 2),
    Sketcher.Constraint("Horizontal", 3),
    Sketcher.Constraint("DistanceX", 1, 1, 1, 2, 10.78),
    Sketcher.Constraint("DistanceX", -1, 1, 0, 2, 3.5),
    Sketcher.Constraint("DistanceY", 0, 2, 0, 1, 1.889736),
    Sketcher.Constraint("DistanceY", -1, 1, 0, 2, 18.310918),
])
pocket2 = doc.addObject("PartDesign::Pocket", "Pocket001")
body.addObject(pocket2)
pocket2.Profile = sketch4
pocket2.Length = 2.5

# Sketch on an angled plane
sketch5 = doc.addObject("Sketcher::SketchObject", "Sketch004")
body.addObject(sketch5)
sketch5.Placement = App.Placement(App.Vector(-17.208575, -14.836417, 0), App.Rotation(App.Vector(0, 0, 1), App.Vector(-0.652975943, 0.757378649, 0), App.Vector(-0.757378649, -0.652975943, 0), "ZXY"))
sketch5.addGeometry([
    Part.LineSegment(App.Vector(3.5, 20.2, 0), App.Vector(3.5, 18.3, 0)),
    Part.LineSegment(App.Vector(3.5, 18.3, 0), App.Vector(14.3, 18.3, 0)),
    Part.LineSegment(App.Vector(14.3, 18.3, 0), App.Vector(14.3, 20.2, 0)),
    Part.LineSegment(App.Vector(14.3, 20.2, 0), App.Vector(3.5, 20.2, 0)),
], False)
sketch5.addConstraint([
    Sketcher.Constraint("Coincident", 0, 2, 1, 1),
    Sketcher.Constraint("Coincident", 1, 2, 2, 1),
    Sketcher.Constraint("Coincident", 2, 2, 3, 1),
    Sketcher.Constraint("Coincident", 3, 2, 0, 1),
    Sketcher.Constraint("Vertical", 0),
    Sketcher.Constraint("Horizontal", 1),
    Sketcher.Constraint("Vertical", 2),
    Sketcher.Constraint("Horizontal", 3),
    Sketcher.Constraint("DistanceX", 1, 1, 1, 2, 10.78),
    Sketcher.Constraint("DistanceX", -1, 1, 0, 2, 3.5),
    Sketcher.Constraint("DistanceY", 0, 2, 0, 1, 1.889736),
    Sketcher.Constraint("DistanceY", -1, 1, 0, 2, 18.310918),
])
pad3 = doc.addObject("PartDesign::Pad", "Pad002")
body.addObject(pad3)
pad3.Profile = sketch5
pad3.Length = 3

# Sketch on XY plane
sketch6 = doc.addObject("Sketcher::SketchObject", "Sketch005")
body.addObject(sketch6)
sketch6.AttachmentSupport = (doc.XY_Plane, [""])
sketch6.MapMode = "FlatFace"
sketch6.addGeometry([
    Part.LineSegment(App.Vector(-30.74, -3.73, 0), App.Vector(-33.36, -0.69, 0)),  # 0
    Part.LineSegment(App.Vector(-33.36, -0.69, 0), App.Vector(-36.01, -3.34, 0)),  # 1
    Part.ArcOfCircle(Part.Circle(App.Vector(-35.66, -3.7, 0), App.Vector(0, 0, 1), 0.5), math.radians(135), math.radians(180)),  # 2
    Part.LineSegment(App.Vector(-36.16, -3.69, 0), App.Vector(-36.17, -5.32, 0)),  # 3
    Part.ArcOfCircle(Part.Circle(App.Vector(-35.17, -5.33, 0), App.Vector(0, 0, 1), 1), math.radians(180), math.radians(270)),  # 4
    Part.LineSegment(App.Vector(-35.16, -6.33, 0), App.Vector(-33.54, -6.32, 0)),  # 5
    Part.ArcOfCircle(Part.Circle(App.Vector(-33.54, -5.82, 0), App.Vector(0, 0, 1), 0.5), math.radians(-90), math.radians(-45)),  # 6
    Part.LineSegment(App.Vector(-33.19, -6.17, 0), App.Vector(-30.74, -3.73, 0)),  # 7
    Part.Circle(App.Vector(-33.57, -3.52, 0), App.Vector(0, 0, 1), 0.8),  # 8
], False)
sketch6.addConstraint([
    Sketcher.Constraint("Coincident", 0, 2, 1, 1),
    Sketcher.Constraint("Tangent", 1, 2, 2, 1),
    Sketcher.Constraint("Tangent", 2, 2, 3, 1),
    Sketcher.Constraint("Tangent", 3, 2, 4, 1),
    Sketcher.Constraint("Tangent", 4, 2, 5, 1),
    Sketcher.Constraint("Tangent", 5, 2, 6, 1),
    Sketcher.Constraint("Tangent", 6, 2, 7, 1),
    Sketcher.Constraint("Coincident", 7, 2, 0, 1),
    Sketcher.Constraint("Equal", 2, 6),
    Sketcher.Constraint("Parallel", 1, 7),
    Sketcher.Constraint("Equal", 3, 5),
    Sketcher.Constraint("Radius", 4, 1.0),
    Sketcher.Constraint("Diameter", 8, 1.6),
    Sketcher.Constraint("Radius", 2, 0.5),
    Sketcher.Constraint("Angle", 1, Q("-135 deg")),
    Sketcher.Constraint("DistanceX", 0, 2, -1, 1, 33.363801),
    Sketcher.Constraint("DistanceY", 3, 2, 2, 2, 1.627501),
    Sketcher.Constraint("DistanceX", 4, 2, 5, 2, 1.627501),
    Sketcher.Constraint("DistanceX", 8, 3, 5, 2, 0.0317),
    Sketcher.Constraint("Distance", 7, 3.45318),
    Sketcher.Constraint("DistanceX", 2, 3, -1, 1, 35.661391),
    Sketcher.Constraint("DistanceY", 2, 3, -1, 1, 3.697219),
    Sketcher.Constraint("DistanceX", 4, 3, -1, 1, 35.170309),
    Sketcher.Constraint("DistanceY", 4, 3, 8, 3, 1.810082),
])
pad4 = doc.addObject("PartDesign::Pad", "Pad003")
body.addObject(pad4)
pad4.Profile = sketch6
pad4.Length = 17.78

doc.recompute()
